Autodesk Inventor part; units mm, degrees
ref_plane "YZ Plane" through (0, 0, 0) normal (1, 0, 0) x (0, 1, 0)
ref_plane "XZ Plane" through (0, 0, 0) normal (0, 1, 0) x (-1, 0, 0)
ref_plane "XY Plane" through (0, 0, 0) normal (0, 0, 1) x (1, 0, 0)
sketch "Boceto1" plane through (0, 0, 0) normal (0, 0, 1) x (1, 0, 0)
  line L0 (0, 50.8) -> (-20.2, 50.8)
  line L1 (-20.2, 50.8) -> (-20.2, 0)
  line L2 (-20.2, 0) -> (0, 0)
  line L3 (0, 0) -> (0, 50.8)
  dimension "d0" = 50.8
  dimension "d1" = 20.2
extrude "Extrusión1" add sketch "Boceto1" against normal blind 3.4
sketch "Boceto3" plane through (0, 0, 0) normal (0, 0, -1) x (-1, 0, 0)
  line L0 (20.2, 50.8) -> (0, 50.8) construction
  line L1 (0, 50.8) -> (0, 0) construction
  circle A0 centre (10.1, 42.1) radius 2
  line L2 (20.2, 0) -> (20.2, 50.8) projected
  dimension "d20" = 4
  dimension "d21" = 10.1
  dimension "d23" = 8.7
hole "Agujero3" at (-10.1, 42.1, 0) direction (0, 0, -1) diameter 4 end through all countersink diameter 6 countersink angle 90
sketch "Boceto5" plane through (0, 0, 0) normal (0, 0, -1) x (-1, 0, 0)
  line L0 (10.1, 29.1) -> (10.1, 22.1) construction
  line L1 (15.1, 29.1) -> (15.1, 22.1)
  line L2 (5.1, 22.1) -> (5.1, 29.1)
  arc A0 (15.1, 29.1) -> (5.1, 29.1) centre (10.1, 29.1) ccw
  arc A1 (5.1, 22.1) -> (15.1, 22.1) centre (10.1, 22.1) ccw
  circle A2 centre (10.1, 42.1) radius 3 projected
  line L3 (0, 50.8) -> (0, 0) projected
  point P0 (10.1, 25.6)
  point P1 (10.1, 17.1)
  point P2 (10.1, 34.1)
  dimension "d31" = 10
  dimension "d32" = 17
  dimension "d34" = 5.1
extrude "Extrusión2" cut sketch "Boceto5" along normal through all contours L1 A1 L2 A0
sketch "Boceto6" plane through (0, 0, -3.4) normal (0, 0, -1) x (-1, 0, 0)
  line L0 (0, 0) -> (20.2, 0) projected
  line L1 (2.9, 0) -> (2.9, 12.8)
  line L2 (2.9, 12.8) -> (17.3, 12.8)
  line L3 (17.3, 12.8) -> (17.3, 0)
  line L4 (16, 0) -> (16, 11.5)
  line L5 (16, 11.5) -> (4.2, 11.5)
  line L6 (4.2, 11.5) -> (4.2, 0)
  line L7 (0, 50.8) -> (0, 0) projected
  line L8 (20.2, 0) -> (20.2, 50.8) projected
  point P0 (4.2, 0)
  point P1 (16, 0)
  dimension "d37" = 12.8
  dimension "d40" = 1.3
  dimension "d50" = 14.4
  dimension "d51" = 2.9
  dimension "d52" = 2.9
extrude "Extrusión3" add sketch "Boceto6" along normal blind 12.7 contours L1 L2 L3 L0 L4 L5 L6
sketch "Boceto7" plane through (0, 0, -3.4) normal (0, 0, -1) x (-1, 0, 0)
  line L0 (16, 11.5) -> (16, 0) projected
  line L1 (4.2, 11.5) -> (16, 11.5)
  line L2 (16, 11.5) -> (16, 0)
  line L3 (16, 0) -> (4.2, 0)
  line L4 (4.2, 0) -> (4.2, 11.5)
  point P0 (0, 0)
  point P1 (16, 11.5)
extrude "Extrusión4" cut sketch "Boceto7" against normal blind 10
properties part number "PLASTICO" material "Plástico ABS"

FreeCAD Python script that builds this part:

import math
import FreeCAD as App
import Part
import Sketcher
Q = App.Units.Quantity

doc = App.newDocument("Part")
body = doc.addObject("PartDesign::Body", "Body")

# Sketch on XY plane
sketch1 = body.newObject("Sketcher::SketchObject", "Sketch")
sketch1.AttachmentSupport = (doc.getObject("XY_Plane"), [""])
sketch1.MapMode = "FlatFace"
sketch1.addGeometry([
    Part.LineSegment(App.Vector(0, 0, 0), App.Vector(0, 51, 0)),
    Part.LineSegment(App.Vector(0, 51, 0), App.Vector(-20, 51, 0)),
    Part.LineSegment(App.Vector(-20, 51, 0), App.Vector(-20, 0, 0)),
    Part.LineSegment(App.Vector(-20, 0, 0), App.Vector(0, 0, 0)),
], False)
sketch1.addConstraint([
    Sketcher.Constraint("Coincident", 0, 2, 1, 1),
    Sketcher.Constraint("Coincident", 1, 2, 2, 1),
    Sketcher.Constraint("Coincident", 2, 2, 3, 1),
    Sketcher.Constraint("Coincident", 3, 2, 0, 1),
    Sketcher.Constraint("Vertical", 0),
    Sketcher.Constraint("Horizontal", 1),
    Sketcher.Constraint("Vertical", 2),
    Sketcher.Constraint("Horizontal", 3),
    Sketcher.Constraint("Coincident", 3, 2, -1, 1),
    Sketcher.Constraint("DistanceX", 1, 2, 1, 1, Q("20.2 mm")),
    Sketcher.Constraint("DistanceY", 0, 1, 0, 2, Q("50.8 mm")),
])
pad1 = body.newObject("PartDesign::Pad", "Pad")
pad1.Profile = sketch1
pad1.Length = 3.4
pad1.Reversed = True

# Sketch on XY plane
sketch2 = body.newObject("Sketcher::SketchObject", "Sketch001")
sketch2.AttachmentSupport = (doc.getObject("XY_Plane"), [""])
sketch2.MapMode = "FlatFace"
sketch2.addGeometry(Part.Circle(App.Vector(-10.1, 42.1, 0), App.Vector(0, 0, 1), 2), False)
sketch2.addConstraint([
    Sketcher.Constraint("Diameter", 0, Q("4 mm")),
    Sketcher.Constraint("DistanceX", 0, 3, -1, 1, Q("10.1 mm")),
    Sketcher.Constraint("DistanceY", -1, 1, 0, 3, Q("42.1 mm")),
])
doc.recompute()
hole = body.newObject("PartDesign::Hole", "Hole")
hole.Profile = sketch2
hole.ThreadType = "None"
hole.Diameter = 4
hole.DepthType = "ThroughAll"
hole.HoleCutType = "Countersink"
hole.HoleCutDiameter = 6
hole.HoleCutCountersinkAngle = 90

# Sketch on XY plane
sketch3 = body.newObject("Sketcher::SketchObject", "Sketch002")
sketch3.AttachmentSupport = (doc.getObject("XY_Plane"), [""])
sketch3.MapMode = "FlatFace"
sketch3.addGeometry([
    Part.LineSegment(App.Vector(-15, 22, 0), App.Vector(-15, 29, 0)),
    Part.ArcOfCircle(Part.Circle(App.Vector(-10, 29, 0), App.Vector(0, 0, 1), 5), math.radians(0), math.radians(180)),
    Part.LineSegment(App.Vector(-5, 29, 0), App.Vector(-5, 22, 0)),
    Part.ArcOfCircle(Part.Circle(App.Vector(-10, 22, 0), App.Vector(0, 0, 1), 5), math.radians(180), math.radians(360)),
], False)
sketch3.addConstraint([
    Sketcher.Constraint("Tangent", 0, 2, 1, 2),
    Sketcher.Constraint("Tangent", 1, 1, 2, 1),
    Sketcher.Constraint("Tangent", 2, 2, 3, 2),
    Sketcher.Constraint("Tangent", 3, 1, 0, 1),
    Sketcher.Constraint("Vertical", 0),
    Sketcher.Constraint("Vertical", 2),
    Sketcher.Constraint("Radius", 1, Q("5 mm")),
    Sketcher.Constraint("DistanceX", 1, 1, -1, 1, Q("5.1 mm")),
    Sketcher.Constraint("DistanceY", 0, 1, 0, 2, Q("7 mm")),
    Sketcher.Constraint("DistanceY", -1, 1, 1, 3, Q("29.1 mm")),
])
pocket1 = body.newObject("PartDesign::Pocket", "Pocket")
pocket1.Profile = sketch3
pocket1.Type = "ThroughAll"

# Sketch on XY plane
sketch4 = body.newObject("Sketcher::SketchObject", "Sketch003")
sketch4.AttachmentSupport = (doc.getObject("XY_Plane"), [""])
sketch4.MapMode = "FlatFace"
sketch4.AttachmentOffset = App.Placement(App.Vector(0, 0, -3.4), App.Rotation())
sketch4.addGeometry([
    Part.LineSegment(App.Vector(-2.9, 12.8, 0), App.Vector(-2.9, 0, 0)),  # 0
    Part.LineSegment(App.Vector(-2.9, 0, 0), App.Vector(-4.2, 0, 0)),  # 1
    Part.LineSegment(App.Vector(-4.2, 0, 0), App.Vector(-4.2, 11.5, 0)),  # 2
    Part.LineSegment(App.Vector(-4.2, 11.5, 0), App.Vector(-16, 11.5, 0)),  # 3
    Part.LineSegment(App.Vector(-16, 11.5, 0), App.Vector(-16, 0, 0)),  # 4
    Part.LineSegment(App.Vector(-16, 0, 0), App.Vector(-17.3, 0, 0)),  # 5
    Part.LineSegment(App.Vector(-17.3, 0, 0), App.Vector(-17.3, 12.8, 0)),  # 6
    Part.LineSegment(App.Vector(-17.3, 12.8, 0), App.Vector(-2.9, 12.8, 0)),  # 7
], False)
sketch4.addConstraint([
    Sketcher.Constraint("Coincident", 0, 2, 1, 1),
    Sketcher.Constraint("Coincident", 1, 2, 2, 1),
    Sketcher.Constraint("Coincident", 2, 2, 3, 1),
    Sketcher.Constraint("Coincident", 3, 2, 4, 1),
    Sketcher.Constraint("Coincident", 4, 2, 5, 1),
    Sketcher.Constraint("Coincident", 5, 2, 6, 1),
    Sketcher.Constraint("Coincident", 6, 2, 7, 1),
    Sketcher.Constraint("Coincident", 7, 2, 0, 1),
    Sketcher.Constraint("Vertical", 0),
    Sketcher.Constraint("Horizontal", 1),
    Sketcher.Constraint("Vertical", 2),
    Sketcher.Constraint("Horizontal", 3),
    Sketcher.Constraint("Vertical", 4),
    Sketcher.Constraint("Horizontal", 5),
    Sketcher.Constraint("Vertical", 6),
    Sketcher.Constraint("Horizontal", 7),
    Sketcher.Constraint("PointOnObject", 0, 2, -1),
    Sketcher.Constraint("PointOnObject", 4, 2, -1),
    Sketcher.Constraint("Equal", 1, 5),
    Sketcher.Constraint("DistanceX", 1, 2, 1, 1, Q("1.3 mm")),
    Sketcher.Constraint("DistanceX", 7, 1, 7, 2, Q("14.4 mm")),
    Sketcher.Constraint("DistanceY", 0, 2, 0, 1, Q("12.8 mm")),
    Sketcher.Constraint("DistanceX", 0, 2, -1, 1, Q("2.9 mm")),
    Sketcher.Constraint("DistanceY", 3, 2, 6, 2, Q("1.3 mm")),
])
pad2 = body.newObject("PartDesign::Pad", "Pad001")
pad2.Profile = sketch4
pad2.Length = 12.7
pad2.Reversed = True

# Sketch on XY plane
sketch5 = body.newObject("Sketcher::SketchObject", "Sketch004")
sketch5.AttachmentSupport = (doc.getObject("XY_Plane"), [""])
sketch5.MapMode = "FlatFace"
sketch5.AttachmentOffset = App.Placement(App.Vector(0, 0, -3.4), App.Rotation())
sketch5.addGeometry([
    Part.LineSegment(App.Vector(-16, 0, 0), App.Vector(-16, 12, 0)),
    Part.LineSegment(App.Vector(-16, 12, 0), App.Vector(-4, 12, 0)),
    Part.LineSegment(App.Vector(-4, 12, 0), App.Vector(-4, 0, 0)),
    Part.LineSegment(App.Vector(-4, 0, 0), App.Vector(-16, 0, 0)),
], False)
sketch5.addConstraint([
    Sketcher.Constraint("Coincident", 0, 2, 1, 1),
    Sketcher.Constraint("Coincident", 1, 2, 2, 1),
    Sketcher.Constraint("Coincident", 2, 2, 3, 1),
    Sketcher.Constraint("Coincident", 3, 2, 0, 1),
    Sketcher.Constraint("Vertical", 0),
    Sketcher.Constraint("Horizontal", 1),
    Sketcher.Constraint("Vertical", 2),
    Sketcher.Constraint("Horizontal", 3),
    Sketcher.Constraint("PointOnObject", 2, 2, -1),
    Sketcher.Constraint("DistanceX", 1, 1, 1, 2, Q("11.8 mm")),
    Sketcher.Constraint("DistanceY", 0, 1, 0, 2, Q("11.5 mm")),
    Sketcher.Constraint("DistanceX", 0, 2, -1, 1, Q("16 mm")),
])
pocket2 = body.newObject("PartDesign::Pocket", "Pocket001")
pocket2.Profile = sketch5
pocket2.Length = 10
pocket2.Reversed = True

doc.recompute()
